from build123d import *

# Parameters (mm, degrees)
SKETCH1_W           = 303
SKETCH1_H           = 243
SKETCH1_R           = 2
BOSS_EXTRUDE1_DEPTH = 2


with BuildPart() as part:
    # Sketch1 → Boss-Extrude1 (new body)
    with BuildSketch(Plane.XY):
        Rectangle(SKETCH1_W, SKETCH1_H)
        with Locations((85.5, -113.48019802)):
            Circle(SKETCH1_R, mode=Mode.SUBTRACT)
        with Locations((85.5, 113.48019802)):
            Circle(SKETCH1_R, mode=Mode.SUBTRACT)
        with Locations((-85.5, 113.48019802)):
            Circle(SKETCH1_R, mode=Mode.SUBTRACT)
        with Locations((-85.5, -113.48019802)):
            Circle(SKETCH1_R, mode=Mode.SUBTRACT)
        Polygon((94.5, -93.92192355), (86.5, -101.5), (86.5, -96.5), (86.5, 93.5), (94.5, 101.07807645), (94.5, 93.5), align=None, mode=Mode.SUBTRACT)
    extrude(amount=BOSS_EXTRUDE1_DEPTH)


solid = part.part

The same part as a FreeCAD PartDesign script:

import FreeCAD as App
import Part
import Sketcher

doc = App.newDocument("Part")
body = doc.addObject("PartDesign::Body", "Body")

# Sketch on XY plane
sketch1 = body.newObject("Sketcher::SketchObject", "Sketch")
sketch1.AttachmentSupport = (doc.getObject("XY_Plane"), [""])
sketch1.MapMode = "FlatFace"
sketch1.addGeometry(Part.LineSegment(App.Vector(-151.5, 121.5, 0), App.Vector(-151.5, -121.5, 0)), False)
sketch1.addGeometry(Part.LineSegment(App.Vector(-151.5, -121.5, 0), App.Vector(151.5, -121.5, 0)), False)
sketch1.addGeometry(Part.LineSegment(App.Vector(151.5, -121.5, 0), App.Vector(151.5, 121.5, 0)), False)
sketch1.addGeometry(Part.LineSegment(App.Vector(151.5, 121.5, 0), App.Vector(-151.5, 121.5, 0)), False)
sketch1.addGeometry(Part.Circle(App.Vector(-85.5, -113.5, 0), App.Vector(0, 0, 1), 2), False)
sketch1.addGeometry(Part.Circle(App.Vector(85.5, -113.5, 0), App.Vector(0, 0, 1), 2), False)
sketch1.addGeometry(Part.LineSegment(App.Vector(94.5, 101.1, 0), App.Vector(94.5, -93.9, 0)), False)
sketch1.addGeometry(Part.LineSegment(App.Vector(94.5, -93.9, 0), App.Vector(86.5, -101.5, 0)), False)
sketch1.addGeometry(Part.LineSegment(App.Vector(86.5, -101.5, 0), App.Vector(86.5, 93.5, 0)), False)
sketch1.addGeometry(Part.LineSegment(App.Vector(86.5, 93.5, 0), App.Vector(94.5, 101.1, 0)), False)
sketch1.addGeometry(Part.Circle(App.Vector(-85.5, 113.5, 0), App.Vector(0, 0, 1), 2), False)
sketch1.addGeometry(Part.Circle(App.Vector(85.5, 113.5, 0), App.Vector(0, 0, 1), 2), False)
sketch1.addConstraint(Sketcher.Constraint("Coincident", 0, 2, 1, 1))
sketch1.addConstraint(Sketcher.Constraint("Coincident", 1, 2, 2, 1))
sketch1.addConstraint(Sketcher.Constraint("Coincident", 2, 2, 3, 1))
sketch1.addConstraint(Sketcher.Constraint("Coincident", 3, 2, 0, 1))
sketch1.addConstraint(Sketcher.Constraint("Coincident", 6, 2, 7, 1))
sketch1.addConstraint(Sketcher.Constraint("Coincident", 7, 2, 8, 1))
sketch1.addConstraint(Sketcher.Constraint("Coincident", 8, 2, 9, 1))
sketch1.addConstraint(Sketcher.Constraint("Coincident", 9, 2, 6, 1))
sketch1.addConstraint(Sketcher.Constraint("Vertical", 0))
sketch1.addConstraint(Sketcher.Constraint("Horizontal", 1))
sketch1.addConstraint(Sketcher.Constraint("Vertical", 2))
sketch1.addConstraint(Sketcher.Constraint("Horizontal", 3))
sketch1.addConstraint(Sketcher.Constraint("Vertical", 6))
sketch1.addConstraint(Sketcher.Constraint("Vertical", 8))
sketch1.addConstraint(Sketcher.Constraint("Equal", 4, 5))
sketch1.addConstraint(Sketcher.Constraint("Equal", 5, 10))
sketch1.addConstraint(Sketcher.Constraint("Equal", 10, 11))
sketch1.addConstraint(Sketcher.Constraint("Symmetric", 5, 3, 10, 3, -1, 1))
sketch1.addConstraint(Sketcher.Constraint("Symmetric", 4, 3, 11, 3, -1, 1))
sketch1.addConstraint(Sketcher.Constraint("Symmetric", 0, 2, 2, 2, -1, 1))
sketch1.addConstraint(Sketcher.Constraint("Symmetric", 4, 3, 5, 3, -2))
sketch1.addConstraint(Sketcher.Constraint("Parallel", 7, 9))
sketch1.addConstraint(Sketcher.Constraint("Diameter", 4, 4.0))
sketch1.addConstraint(Sketcher.Constraint("DistanceX", 1, 1, 1, 2, 303.0))
sketch1.addConstraint(Sketcher.Constraint("DistanceY", 0, 2, 0, 1, 243.0))
sketch1.addConstraint(Sketcher.Constraint("DistanceY", 6, 2, 6, 1, 195.0))
sketch1.addConstraint(Sketcher.Constraint("DistanceX", 4, 3, 5, 3, 171.0))
sketch1.addConstraint(Sketcher.Constraint("DistanceX", 5, 3, 6, 2, 9.0))
sketch1.addConstraint(Sketcher.Constraint("DistanceX", 7, 2, 6, 2, 8.0))
sketch1.addConstraint(Sketcher.Constraint("DistanceY", 1, 2, 7, 2, 20.0))
sketch1.addConstraint(Sketcher.Constraint("DistanceY", 4, 3, -1, 1, 113.480198))
sketch1.addConstraint(Sketcher.Constraint("DistanceY", 6, 2, 11, 3, 207.402122))
pad1 = body.newObject("PartDesign::Pad", "Pad")
pad1.Profile = sketch1
pad1.Length = 2

doc.recompute()
